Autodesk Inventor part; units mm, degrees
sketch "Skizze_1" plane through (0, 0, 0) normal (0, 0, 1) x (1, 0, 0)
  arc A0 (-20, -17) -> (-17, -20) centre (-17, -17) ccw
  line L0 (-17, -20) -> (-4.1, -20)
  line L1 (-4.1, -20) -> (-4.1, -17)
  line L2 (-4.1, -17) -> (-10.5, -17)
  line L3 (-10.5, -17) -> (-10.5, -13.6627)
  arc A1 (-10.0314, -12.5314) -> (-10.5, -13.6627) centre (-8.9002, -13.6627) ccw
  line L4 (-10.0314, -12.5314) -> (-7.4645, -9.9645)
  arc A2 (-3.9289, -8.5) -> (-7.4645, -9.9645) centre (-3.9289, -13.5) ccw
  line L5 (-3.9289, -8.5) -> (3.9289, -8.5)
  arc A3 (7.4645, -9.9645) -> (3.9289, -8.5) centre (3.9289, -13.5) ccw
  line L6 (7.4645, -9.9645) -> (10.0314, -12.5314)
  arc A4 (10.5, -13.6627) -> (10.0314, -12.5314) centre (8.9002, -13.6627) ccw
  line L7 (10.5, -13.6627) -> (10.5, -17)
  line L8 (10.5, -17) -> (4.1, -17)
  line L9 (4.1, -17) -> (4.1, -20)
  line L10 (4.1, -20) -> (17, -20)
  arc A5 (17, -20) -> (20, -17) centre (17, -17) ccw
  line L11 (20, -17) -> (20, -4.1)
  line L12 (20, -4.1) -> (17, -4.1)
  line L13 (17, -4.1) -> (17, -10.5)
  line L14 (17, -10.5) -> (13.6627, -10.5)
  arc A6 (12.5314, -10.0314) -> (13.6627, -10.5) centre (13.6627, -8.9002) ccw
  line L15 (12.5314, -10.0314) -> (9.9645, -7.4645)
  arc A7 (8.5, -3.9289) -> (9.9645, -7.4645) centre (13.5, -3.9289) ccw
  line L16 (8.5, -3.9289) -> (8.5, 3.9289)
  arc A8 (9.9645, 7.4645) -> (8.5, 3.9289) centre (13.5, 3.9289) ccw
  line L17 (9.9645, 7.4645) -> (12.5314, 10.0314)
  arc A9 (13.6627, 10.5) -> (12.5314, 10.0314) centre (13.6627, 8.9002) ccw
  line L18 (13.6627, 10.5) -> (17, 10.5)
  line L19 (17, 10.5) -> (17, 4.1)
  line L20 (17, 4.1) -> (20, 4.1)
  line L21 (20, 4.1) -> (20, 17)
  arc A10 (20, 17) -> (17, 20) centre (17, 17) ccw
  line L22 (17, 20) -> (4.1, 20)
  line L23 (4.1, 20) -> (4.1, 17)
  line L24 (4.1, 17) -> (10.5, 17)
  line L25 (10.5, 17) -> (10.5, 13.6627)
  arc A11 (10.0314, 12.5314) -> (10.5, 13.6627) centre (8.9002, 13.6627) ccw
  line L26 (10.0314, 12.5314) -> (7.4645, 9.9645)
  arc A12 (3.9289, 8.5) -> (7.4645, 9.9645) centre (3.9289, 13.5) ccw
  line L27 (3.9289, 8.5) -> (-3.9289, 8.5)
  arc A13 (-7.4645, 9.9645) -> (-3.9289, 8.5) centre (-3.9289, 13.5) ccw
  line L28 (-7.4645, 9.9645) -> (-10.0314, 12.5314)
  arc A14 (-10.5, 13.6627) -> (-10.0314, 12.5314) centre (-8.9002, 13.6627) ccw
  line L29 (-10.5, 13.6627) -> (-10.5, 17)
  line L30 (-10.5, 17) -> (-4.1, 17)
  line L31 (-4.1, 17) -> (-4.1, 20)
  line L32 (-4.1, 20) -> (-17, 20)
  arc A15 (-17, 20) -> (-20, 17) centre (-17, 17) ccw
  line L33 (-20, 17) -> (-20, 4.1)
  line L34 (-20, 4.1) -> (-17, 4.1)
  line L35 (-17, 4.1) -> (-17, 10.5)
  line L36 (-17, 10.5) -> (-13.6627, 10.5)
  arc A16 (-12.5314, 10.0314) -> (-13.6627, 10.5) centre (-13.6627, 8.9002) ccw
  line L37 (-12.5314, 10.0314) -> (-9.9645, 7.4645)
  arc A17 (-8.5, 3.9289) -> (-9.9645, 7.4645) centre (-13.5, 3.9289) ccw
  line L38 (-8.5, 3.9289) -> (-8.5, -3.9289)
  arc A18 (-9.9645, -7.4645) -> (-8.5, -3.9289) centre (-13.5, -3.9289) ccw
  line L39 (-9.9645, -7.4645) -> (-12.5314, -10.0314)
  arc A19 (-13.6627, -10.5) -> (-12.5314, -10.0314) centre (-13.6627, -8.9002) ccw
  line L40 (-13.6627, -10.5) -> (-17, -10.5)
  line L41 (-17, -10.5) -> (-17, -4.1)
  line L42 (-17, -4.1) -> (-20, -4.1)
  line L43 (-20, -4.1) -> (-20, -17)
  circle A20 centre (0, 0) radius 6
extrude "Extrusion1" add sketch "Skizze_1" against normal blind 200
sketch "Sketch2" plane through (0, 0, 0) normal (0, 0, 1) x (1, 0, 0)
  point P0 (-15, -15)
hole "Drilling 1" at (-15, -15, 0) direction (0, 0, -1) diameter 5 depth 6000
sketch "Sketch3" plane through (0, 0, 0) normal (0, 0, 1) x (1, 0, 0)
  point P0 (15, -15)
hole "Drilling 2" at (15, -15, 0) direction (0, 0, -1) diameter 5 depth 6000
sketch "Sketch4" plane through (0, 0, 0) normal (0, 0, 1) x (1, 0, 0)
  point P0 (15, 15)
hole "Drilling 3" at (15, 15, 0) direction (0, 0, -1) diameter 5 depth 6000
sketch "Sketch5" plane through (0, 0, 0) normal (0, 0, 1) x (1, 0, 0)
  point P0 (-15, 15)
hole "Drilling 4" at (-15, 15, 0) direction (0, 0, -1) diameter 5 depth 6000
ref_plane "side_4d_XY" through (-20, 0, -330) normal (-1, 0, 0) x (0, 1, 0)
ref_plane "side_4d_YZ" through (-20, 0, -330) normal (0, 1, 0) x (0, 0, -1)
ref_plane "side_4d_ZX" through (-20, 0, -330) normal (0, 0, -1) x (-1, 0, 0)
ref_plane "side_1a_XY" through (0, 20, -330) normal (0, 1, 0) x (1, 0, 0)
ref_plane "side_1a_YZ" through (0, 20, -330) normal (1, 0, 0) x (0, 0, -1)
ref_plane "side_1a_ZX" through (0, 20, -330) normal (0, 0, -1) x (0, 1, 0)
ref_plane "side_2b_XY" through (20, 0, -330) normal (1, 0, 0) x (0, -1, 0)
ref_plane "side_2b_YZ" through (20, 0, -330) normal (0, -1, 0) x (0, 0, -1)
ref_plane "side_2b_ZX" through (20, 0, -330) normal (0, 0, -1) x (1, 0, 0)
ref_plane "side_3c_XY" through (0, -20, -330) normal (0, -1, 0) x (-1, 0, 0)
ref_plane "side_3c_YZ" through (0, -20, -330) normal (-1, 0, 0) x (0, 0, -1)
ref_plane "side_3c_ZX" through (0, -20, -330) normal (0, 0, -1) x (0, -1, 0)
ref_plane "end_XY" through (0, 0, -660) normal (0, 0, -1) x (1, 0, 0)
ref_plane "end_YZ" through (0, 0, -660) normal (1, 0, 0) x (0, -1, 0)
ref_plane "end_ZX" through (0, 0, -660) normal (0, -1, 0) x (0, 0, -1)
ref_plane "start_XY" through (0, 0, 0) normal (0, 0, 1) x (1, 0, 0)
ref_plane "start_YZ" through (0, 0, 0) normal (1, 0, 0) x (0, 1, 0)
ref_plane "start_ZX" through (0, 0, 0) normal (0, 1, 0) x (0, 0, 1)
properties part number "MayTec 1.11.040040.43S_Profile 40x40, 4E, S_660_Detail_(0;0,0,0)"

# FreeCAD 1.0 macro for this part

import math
import FreeCAD as App
import Part
import Sketcher

V = App.Vector
Q = App.Units.Quantity

doc = App.newDocument("Part")
params = doc.addObject("Spreadsheet::Sheet", "Params")
for row, (alias, value) in enumerate([
    ("sketch1_diameter", "12 mm"),
    ("sketch1_radius", "3 mm"),
    ("sketch1_radius2", "5 mm"),
    ("sketch1_width", "12.9 mm"),
    ("sketch1_width2", "6.4 mm"),
    ("pad1_length", "200 mm"),
    ("sketch2_diameter", "5 mm"),
    ("hole_diameter", "5 mm"),
    ("hole_depth", "6000 mm"),
    ("sketch3_diameter", "5 mm"),
    ("hole2_diameter", "5 mm"),
    ("hole2_depth", "6000 mm"),
    ("sketch4_diameter", "5 mm"),
    ("hole3_diameter", "5 mm"),
    ("hole3_depth", "6000 mm"),
    ("sketch5_diameter", "5 mm"),
    ("hole4_diameter", "5 mm"),
    ("hole4_depth", "6000 mm"),
], start=1):
    params.set(f"A{row}", alias)
    params.set(f"B{row}", "=" + value)
    params.setAlias(f"B{row}", alias)

body = doc.addObject("PartDesign::Body", "Body")

# Sketch on XY plane
sketch1 = body.newObject("Sketcher::SketchObject", "Sketch")
sketch1.AttachmentSupport = (doc.getObject("XY_Plane"), [""])
sketch1.MapMode = "FlatFace"
sketch1.addGeometry([
    Part.LineSegment(V(-20, -4.1, 0), V(-20, -17, 0)),  # 0
    Part.ArcOfCircle(Part.Circle(V(-17, -17, 0), V(0, 0, 1), 3), math.radians(180), math.radians(270)),  # 1
    Part.LineSegment(V(-17, -20, 0), V(-4.1, -20, 0)),  # 2
    Part.LineSegment(V(-4.1, -20, 0), V(-4.1, -17, 0)),  # 3
    Part.LineSegment(V(-4.1, -17, 0), V(-10.5, -17, 0)),  # 4
    Part.LineSegment(V(-10.5, -17, 0), V(-10.5, -13.7, 0)),  # 5
    Part.ArcOfCircle(Part.Circle(V(-8.9, -13.7, 0), V(0, 0, 1), 1.6), math.radians(135), math.radians(180)),  # 6
    Part.LineSegment(V(-10, -12.5, 0), V(-7.5, -10, 0)),  # 7
    Part.ArcOfCircle(Part.Circle(V(-3.9, -13.5, 0), V(0, 0, 1), 5), math.radians(90), math.radians(135)),  # 8
    Part.LineSegment(V(-3.9, -8.5, 0), V(3.9, -8.5, 0)),  # 9
    Part.ArcOfCircle(Part.Circle(V(3.9, -13.5, 0), V(0, 0, 1), 5), math.radians(45), math.radians(90)),  # 10
    Part.LineSegment(V(7.5, -10, 0), V(10, -12.5, 0)),  # 11
    Part.ArcOfCircle(Part.Circle(V(8.9, -13.7, 0), V(0, 0, 1), 1.6), math.radians(0), math.radians(45)),  # 12
    Part.LineSegment(V(10.5, -13.7, 0), V(10.5, -17, 0)),  # 13
    Part.LineSegment(V(10.5, -17, 0), V(4.1, -17, 0)),  # 14
    Part.LineSegment(V(4.1, -17, 0), V(4.1, -20, 0)),  # 15
    Part.LineSegment(V(4.1, -20, 0), V(17, -20, 0)),  # 16
    Part.ArcOfCircle(Part.Circle(V(17, -17, 0), V(0, 0, 1), 3), math.radians(-90), math.radians(0)),  # 17
    Part.LineSegment(V(20, -17, 0), V(20, -4.1, 0)),  # 18
    Part.LineSegment(V(20, -4.1, 0), V(17, -4.1, 0)),  # 19
    Part.LineSegment(V(17, -4.1, 0), V(17, -10.5, 0)),  # 20
    Part.LineSegment(V(17, -10.5, 0), V(13.7, -10.5, 0)),  # 21
    Part.ArcOfCircle(Part.Circle(V(13.7, -8.9, 0), V(0, 0, 1), 1.6), math.radians(-135), math.radians(-90)),  # 22
    Part.LineSegment(V(12.5, -10, 0), V(10, -7.5, 0)),  # 23
    Part.ArcOfCircle(Part.Circle(V(13.5, -3.9, 0), V(0, 0, 1), 5), math.radians(180), math.radians(225)),  # 24
    Part.LineSegment(V(8.5, -3.9, 0), V(8.5, 3.9, 0)),  # 25
    Part.ArcOfCircle(Part.Circle(V(13.5, 3.9, 0), V(0, 0, 1), 5), math.radians(135), math.radians(180)),  # 26
    Part.LineSegment(V(10, 7.5, 0), V(12.5, 10, 0)),  # 27
    Part.ArcOfCircle(Part.Circle(V(13.7, 8.9, 0), V(0, 0, 1), 1.6), math.radians(90), math.radians(135)),  # 28
    Part.LineSegment(V(13.7, 10.5, 0), V(17, 10.5, 0)),  # 29
    Part.LineSegment(V(17, 10.5, 0), V(17, 4.1, 0)),  # 30
    Part.LineSegment(V(17, 4.1, 0), V(20, 4.1, 0)),  # 31
    Part.LineSegment(V(20, 4.1, 0), V(20, 17, 0)),  # 32
    Part.ArcOfCircle(Part.Circle(V(17, 17, 0), V(0, 0, 1), 3), math.radians(0), math.radians(90)),  # 33
    Part.LineSegment(V(17, 20, 0), V(4.1, 20, 0)),  # 34
    Part.LineSegment(V(4.1, 20, 0), V(4.1, 17, 0)),  # 35
    Part.LineSegment(V(4.1, 17, 0), V(10.5, 17, 0)),  # 36
    Part.LineSegment(V(10.5, 17, 0), V(10.5, 13.7, 0)),  # 37
    Part.ArcOfCircle(Part.Circle(V(8.9, 13.7, 0), V(0, 0, 1), 1.6), math.radians(-45), math.radians(0)),  # 38
    Part.LineSegment(V(10, 12.5, 0), V(7.5, 10, 0)),  # 39
    Part.ArcOfCircle(Part.Circle(V(3.9, 13.5, 0), V(0, 0, 1), 5), math.radians(-90), math.radians(-45)),  # 40
    Part.LineSegment(V(3.9, 8.5, 0), V(-3.9, 8.5, 0)),  # 41
    Part.ArcOfCircle(Part.Circle(V(-3.9, 13.5, 0), V(0, 0, 1), 5), math.radians(-135), math.radians(-90)),  # 42
    Part.LineSegment(V(-7.5, 10, 0), V(-10, 12.5, 0)),  # 43
    Part.ArcOfCircle(Part.Circle(V(-8.9, 13.7, 0), V(0, 0, 1), 1.6), math.radians(180), math.radians(225)),  # 44
    Part.LineSegment(V(-10.5, 13.7, 0), V(-10.5, 17, 0)),  # 45
    Part.LineSegment(V(-10.5, 17, 0), V(-4.1, 17, 0)),  # 46
    Part.LineSegment(V(-4.1, 17, 0), V(-4.1, 20, 0)),  # 47
    Part.LineSegment(V(-4.1, 20, 0), V(-17, 20, 0)),  # 48
    Part.ArcOfCircle(Part.Circle(V(-17, 17, 0), V(0, 0, 1), 3), math.radians(90), math.radians(180)),  # 49
    Part.LineSegment(V(-20, 17, 0), V(-20, 4.1, 0)),  # 50
    Part.LineSegment(V(-20, 4.1, 0), V(-17, 4.1, 0)),  # 51
    Part.LineSegment(V(-17, 4.1, 0), V(-17, 10.5, 0)),  # 52
    Part.LineSegment(V(-17, 10.5, 0), V(-13.7, 10.5, 0)),  # 53
    Part.ArcOfCircle(Part.Circle(V(-13.7, 8.9, 0), V(0, 0, 1), 1.6), math.radians(45), math.radians(90)),  # 54
    Part.LineSegment(V(-12.5, 10, 0), V(-10, 7.5, 0)),  # 55
    Part.ArcOfCircle(Part.Circle(V(-13.5, 3.9, 0), V(0, 0, 1), 5), math.radians(0), math.radians(45)),  # 56
    Part.LineSegment(V(-8.5, 3.9, 0), V(-8.5, -3.9, 0)),  # 57
    Part.ArcOfCircle(Part.Circle(V(-13.5, -3.9, 0), V(0, 0, 1), 5), math.radians(-45), math.radians(0)),  # 58
    Part.LineSegment(V(-10, -7.5, 0), V(-12.5, -10, 0)),  # 59
    Part.ArcOfCircle(Part.Circle(V(-13.7, -8.9, 0), V(0, 0, 1), 1.6), math.radians(-90), math.radians(-45)),  # 60
    Part.LineSegment(V(-13.7, -10.5, 0), V(-17, -10.5, 0)),  # 61
    Part.LineSegment(V(-17, -10.5, 0), V(-17, -4.1, 0)),  # 62
    Part.LineSegment(V(-17, -4.1, 0), V(-20, -4.1, 0)),  # 63
    Part.Circle(V(0, 0, 0), V(0, 0, 1), 6),  # 64
], False)
sketch1.addConstraint([
    Sketcher.Constraint("Tangent", 0, 2, 1, 1),
    Sketcher.Constraint("Tangent", 1, 2, 2, 1),
    Sketcher.Constraint("Coincident", 2, 2, 3, 1),
    Sketcher.Constraint("Coincident", 3, 2, 4, 1),
    Sketcher.Constraint("Coincident", 4, 2, 5, 1),
    Sketcher.Constraint("Tangent", 5, 2, 6, 2),
    Sketcher.Constraint("Tangent", 6, 1, 7, 1),
    Sketcher.Constraint("Tangent", 7, 2, 8, 2),
    Sketcher.Constraint("Tangent", 8, 1, 9, 1),
    Sketcher.Constraint("Tangent", 9, 2, 10, 2),
    Sketcher.Constraint("Tangent", 10, 1, 11, 1),
    Sketcher.Constraint("Tangent", 11, 2, 12, 2),
    Sketcher.Constraint("Tangent", 12, 1, 13, 1),
    Sketcher.Constraint("Coincident", 13, 2, 14, 1),
    Sketcher.Constraint("Coincident", 14, 2, 15, 1),
    Sketcher.Constraint("Coincident", 15, 2, 16, 1),
    Sketcher.Constraint("Tangent", 16, 2, 17, 1),
    Sketcher.Constraint("Tangent", 17, 2, 18, 1),
    Sketcher.Constraint("Coincident", 18, 2, 19, 1),
    Sketcher.Constraint("Coincident", 19, 2, 20, 1),
    Sketcher.Constraint("Coincident", 20, 2, 21, 1),
    Sketcher.Constraint("Tangent", 21, 2, 22, 2),
    Sketcher.Constraint("Tangent", 22, 1, 23, 1),
    Sketcher.Constraint("Tangent", 23, 2, 24, 2),
    Sketcher.Constraint("Tangent", 24, 1, 25, 1),
    Sketcher.Constraint("Tangent", 25, 2, 26, 2),
    Sketcher.Constraint("Tangent", 26, 1, 27, 1),
    Sketcher.Constraint("Tangent", 27, 2, 28, 2),
    Sketcher.Constraint("Tangent", 28, 1, 29, 1),
    Sketcher.Constraint("Coincident", 29, 2, 30, 1),
    Sketcher.Constraint("Coincident", 30, 2, 31, 1),
    Sketcher.Constraint("Coincident", 31, 2, 32, 1),
    Sketcher.Constraint("Tangent", 32, 2, 33, 1),
    Sketcher.Constraint("Tangent", 33, 2, 34, 1),
    Sketcher.Constraint("Coincident", 34, 2, 35, 1),
    Sketcher.Constraint("Coincident", 35, 2, 36, 1),
    Sketcher.Constraint("Coincident", 36, 2, 37, 1),
    Sketcher.Constraint("Tangent", 37, 2, 38, 2),
    Sketcher.Constraint("Tangent", 38, 1, 39, 1),
    Sketcher.Constraint("Tangent", 39, 2, 40, 2),
    Sketcher.Constraint("Tangent", 40, 1, 41, 1),
    Sketcher.Constraint("Tangent", 41, 2, 42, 2),
    Sketcher.Constraint("Tangent", 42, 1, 43, 1),
    Sketcher.Constraint("Tangent", 43, 2, 44, 2),
    Sketcher.Constraint("Tangent", 44, 1, 45, 1),
    Sketcher.Constraint("Coincident", 45, 2, 46, 1),
    Sketcher.Constraint("Coincident", 46, 2, 47, 1),
    Sketcher.Constraint("Coincident", 47, 2, 48, 1),
    Sketcher.Constraint("Tangent", 48, 2, 49, 1),
    Sketcher.Constraint("Tangent", 49, 2, 50, 1),
    Sketcher.Constraint("Coincident", 50, 2, 51, 1),
    Sketcher.Constraint("Coincident", 51, 2, 52, 1),
    Sketcher.Constraint("Coincident", 52, 2, 53, 1),
    Sketcher.Constraint("Tangent", 53, 2, 54, 2),
    Sketcher.Constraint("Tangent", 54, 1, 55, 1),
    Sketcher.Constraint("Tangent", 55, 2, 56, 2),
    Sketcher.Constraint("Tangent", 56, 1, 57, 1),
    Sketcher.Constraint("Tangent", 57, 2, 58, 2),
    Sketcher.Constraint("Tangent", 58, 1, 59, 1),
    Sketcher.Constraint("Tangent", 59, 2, 60, 2),
    Sketcher.Constraint("Tangent", 60, 1, 61, 1),
    Sketcher.Constraint("Coincident", 61, 2, 62, 1),
    Sketcher.Constraint("Coincident", 62, 2, 63, 1),
    Sketcher.Constraint("Coincident", 63, 2, 0, 1),
    Sketcher.Constraint("Vertical", 0),
    Sketcher.Constraint("Horizontal", 2),
    Sketcher.Constraint("Vertical", 3),
    Sketcher.Constraint("Horizontal", 4),
    Sketcher.Constraint("Vertical", 5),
    Sketcher.Constraint("Horizontal", 9),
    Sketcher.Constraint("Vertical", 13),
    Sketcher.Constraint("Horizontal", 14),
    Sketcher.Constraint("Vertical", 15),
    Sketcher.Constraint("Horizontal", 16),
    Sketcher.Constraint("Vertical", 18),
    Sketcher.Constraint("Horizontal", 19),
    Sketcher.Constraint("Vertical", 20),
    Sketcher.Constraint("Horizontal", 21),
    Sketcher.Constraint("Vertical", 25),
    Sketcher.Constraint("Horizontal", 29),
    Sketcher.Constraint("Vertical", 30),
    Sketcher.Constraint("Horizontal", 31),
    Sketcher.Constraint("Vertical", 32),
    Sketcher.Constraint("Horizontal", 34),
    Sketcher.Constraint("Vertical", 35),
    Sketcher.Constraint("Horizontal", 36),
    Sketcher.Constraint("Vertical", 37),
    Sketcher.Constraint("Horizontal", 41),
    Sketcher.Constraint("Vertical", 45),
    Sketcher.Constraint("Horizontal", 46),
    Sketcher.Constraint("Vertical", 47),
    Sketcher.Constraint("Horizontal", 48),
    Sketcher.Constraint("Vertical", 50),
    Sketcher.Constraint("Horizontal", 51),
    Sketcher.Constraint("Vertical", 52),
    Sketcher.Constraint("Horizontal", 53),
    Sketcher.Constraint("Vertical", 57),
    Sketcher.Constraint("Horizontal", 61),
    Sketcher.Constraint("Vertical", 62),
    Sketcher.Constraint("Horizontal", 63),
    Sketcher.Constraint("Coincident", 64, 3, -1, 1),
    Sketcher.Constraint("Equal", 8, 10),
    Sketcher.Constraint("Equal", 6, 12),
    Sketcher.Constraint("Equal", 1, 17),
    Sketcher.Constraint("Equal", 12, 22),
    Sketcher.Constraint("Equal", 10, 24),
    Sketcher.Constraint("Equal", 24, 26),
    Sketcher.Constraint("Equal", 22, 28),
    Sketcher.Constraint("Equal", 17, 33),
    Sketcher.Constraint("Equal", 28, 38),
    Sketcher.Constraint("Equal", 26, 40),
    Sketcher.Constraint("Equal", 40, 42),
    Sketcher.Constraint("Equal", 38, 44),
    Sketcher.Constraint("Equal", 33, 49),
    Sketcher.Constraint("Equal", 44, 54),
    Sketcher.Constraint("Equal", 42, 56),
    Sketcher.Constraint("Equal", 56, 58),
    Sketcher.Constraint("Equal", 54, 60),
    Sketcher.Constraint("Symmetric", 1, 3, 33, 3, -1, 1),
    Sketcher.Constraint("Symmetric", 6, 3, 38, 3, -1, 1),
    Sketcher.Constraint("Symmetric", 8, 3, 40, 3, -1, 1),
    Sketcher.Constraint("Symmetric", 12, 3, 44, 3, -1, 1),
    Sketcher.Constraint("Symmetric", 17, 3, 49, 3, -1, 1),
    Sketcher.Constraint("Symmetric", 22, 3, 54, 3, -1, 1),
    Sketcher.Constraint("Symmetric", 24, 3, 56, 3, -1, 1),
    Sketcher.Constraint("Symmetric", 28, 3, 60, 3, -1, 1),
    Sketcher.Constraint("Symmetric", 3, 2, 35, 2, -1, 1),
    Sketcher.Constraint("Symmetric", 14, 2, 46, 2, -1, 1),
    Sketcher.Constraint("Symmetric", 19, 2, 51, 2, -1, 1),
    Sketcher.Constraint("Symmetric", 30, 2, 62, 2, -1, 1),
    Sketcher.Constraint("Symmetric", 6, 3, 12, 3, -2),
    Sketcher.Constraint("Symmetric", 1, 3, 17, 3, -2),
    Sketcher.Constraint("Symmetric", 28, 3, 54, 3, -2),
    Sketcher.Constraint("Symmetric", 3, 2, 14, 2, -2),
    Sketcher.Constraint("Symmetric", 30, 2, 51, 2, -2),
    Sketcher.Constraint("Perpendicular", 7, 11),
    Sketcher.Constraint("Parallel", 11, 23),
    Sketcher.Constraint("Perpendicular", 23, 27),
    Sketcher.Constraint("Perpendicular", 39, 43),
    Sketcher.Constraint("Perpendicular", 55, 59),
    Sketcher.Constraint("Horizontal", 26, 3, 56, 3),
    Sketcher.Constraint("Horizontal", 0, 2, 3, 2),
    Sketcher.Constraint("Vertical", 16, 2, 19, 2),
    Sketcher.Constraint("Equal", 48, 0),
    Sketcher.Constraint("Equal", 61, 5),
    Sketcher.Constraint("Equal", 46, 20),
    Sketcher.Constraint("Equal", 41, 25),
    Sketcher.Constraint("Equal", 11, 23),
    Sketcher.Constraint("Diameter", 64, Q("12 mm")),
    Sketcher.Constraint("Radius", 1, Q("3 mm")),
    Sketcher.Constraint("Radius", 8, Q("5 mm")),
    Sketcher.Constraint("DistanceX", 2, 1, 2, 2, Q("12.9 mm")),
    Sketcher.Constraint("DistanceX", 4, 2, 4, 1, Q("6.4 mm")),
    Sketcher.Constraint("DistanceX", 1, 3, -1, 1, Q("17 mm")),
    Sketcher.Constraint("DistanceY", 8, 3, -1, 1, Q("13.5 mm")),
    Sketcher.Constraint("Radius", 6, Q("1.5998 mm")),
    Sketcher.Constraint("DistanceX", 9, 1, 9, 2, Q("7.8578 mm")),
])
sketch1.setExpression("Constraints[148]", "Params.sketch1_diameter")
sketch1.setExpression("Constraints[149]", "Params.sketch1_radius")
sketch1.setExpression("Constraints[150]", "Params.sketch1_radius2")
sketch1.setExpression("Constraints[151]", "Params.sketch1_width")
sketch1.setExpression("Constraints[152]", "Params.sketch1_width2")
pad1 = body.newObject("PartDesign::Pad", "Pad")
pad1.Profile = sketch1
pad1.setExpression("Length", "Params.pad1_length")
pad1.Reversed = True

# Sketch on XY plane
sketch2 = body.newObject("Sketcher::SketchObject", "Sketch001")
sketch2.AttachmentSupport = (doc.getObject("XY_Plane"), [""])
sketch2.MapMode = "FlatFace"
sketch2.addGeometry(Part.Circle(V(-15, -15, 0), V(0, 0, 1), 2.5), False)
sketch2.addConstraint([
    Sketcher.Constraint("Diameter", 0, Q("5 mm")),
    Sketcher.Constraint("DistanceX", 0, 3, -1, 1, Q("15 mm")),
    Sketcher.Constraint("DistanceY", 0, 3, -1, 1, Q("15 mm")),
])
sketch2.setExpression("Constraints[0]", "Params.sketch2_diameter")
doc.recompute()
hole = body.newObject("PartDesign::Hole", "Hole")
hole.Profile = sketch2
hole.ThreadType = "None"
hole.setExpression("Diameter", "Params.hole_diameter")
hole.DepthType = "Dimension"
hole.setExpression("Depth", "Params.hole_depth")
hole.DrillPoint = "Flat"

# Sketch on XY plane
sketch3 = body.newObject("Sketcher::SketchObject", "Sketch002")
sketch3.AttachmentSupport = (doc.getObject("XY_Plane"), [""])
sketch3.MapMode = "FlatFace"
sketch3.addGeometry(Part.Circle(V(15, -15, 0), V(0, 0, 1), 2.5), False)
sketch3.addConstraint([
    Sketcher.Constraint("Diameter", 0, Q("5 mm")),
    Sketcher.Constraint("DistanceX", -1, 1, 0, 3, Q("15 mm")),
    Sketcher.Constraint("DistanceY", 0, 3, -1, 1, Q("15 mm")),
])
sketch3.setExpression("Constraints[0]", "Params.sketch3_diameter")
doc.recompute()
hole2 = body.newObject("PartDesign::Hole", "Hole001")
hole2.Profile = sketch3
hole2.ThreadType = "None"
hole2.setExpression("Diameter", "Params.hole2_diameter")
hole2.DepthType = "Dimension"
hole2.setExpression("Depth", "Params.hole2_depth")
hole2.DrillPoint = "Flat"

# Sketch on XY plane
sketch4 = body.newObject("Sketcher::SketchObject", "Sketch003")
sketch4.AttachmentSupport = (doc.getObject("XY_Plane"), [""])
sketch4.MapMode = "FlatFace"
sketch4.addGeometry(Part.Circle(V(15, 15, 0), V(0, 0, 1), 2.5), False)
sketch4.addConstraint([
    Sketcher.Constraint("Diameter", 0, Q("5 mm")),
    Sketcher.Constraint("DistanceX", -1, 1, 0, 3, Q("15 mm")),
    Sketcher.Constraint("DistanceY", -1, 1, 0, 3, Q("15 mm")),
])
sketch4.setExpression("Constraints[0]", "Params.sketch4_diameter")
doc.recompute()
hole3 = body.newObject("PartDesign::Hole", "Hole002")
hole3.Profile = sketch4
hole3.ThreadType = "None"
hole3.setExpression("Diameter", "Params.hole3_diameter")
hole3.DepthType = "Dimension"
hole3.setExpression("Depth", "Params.hole3_depth")
hole3.DrillPoint = "Flat"

# Sketch on XY plane
sketch5 = body.newObject("Sketcher::SketchObject", "Sketch004")
sketch5.AttachmentSupport = (doc.getObject("XY_Plane"), [""])
sketch5.MapMode = "FlatFace"
sketch5.addGeometry(Part.Circle(V(-15, 15, 0), V(0, 0, 1), 2.5), False)
sketch5.addConstraint([
    Sketcher.Constraint("Diameter", 0, Q("5 mm")),
    Sketcher.Constraint("DistanceX", 0, 3, -1, 1, Q("15 mm")),
    Sketcher.Constraint("DistanceY", -1, 1, 0, 3, Q("15 mm")),
])
sketch5.setExpression("Constraints[0]", "Params.sketch5_diameter")
doc.recompute()
hole4 = body.newObject("PartDesign::Hole", "Hole003")
hole4.Profile = sketch5
hole4.ThreadType = "None"
hole4.setExpression("Diameter", "Params.hole4_diameter")
hole4.DepthType = "Dimension"
hole4.setExpression("Depth", "Params.hole4_depth")
hole4.DrillPoint = "Flat"

doc.recompute()
